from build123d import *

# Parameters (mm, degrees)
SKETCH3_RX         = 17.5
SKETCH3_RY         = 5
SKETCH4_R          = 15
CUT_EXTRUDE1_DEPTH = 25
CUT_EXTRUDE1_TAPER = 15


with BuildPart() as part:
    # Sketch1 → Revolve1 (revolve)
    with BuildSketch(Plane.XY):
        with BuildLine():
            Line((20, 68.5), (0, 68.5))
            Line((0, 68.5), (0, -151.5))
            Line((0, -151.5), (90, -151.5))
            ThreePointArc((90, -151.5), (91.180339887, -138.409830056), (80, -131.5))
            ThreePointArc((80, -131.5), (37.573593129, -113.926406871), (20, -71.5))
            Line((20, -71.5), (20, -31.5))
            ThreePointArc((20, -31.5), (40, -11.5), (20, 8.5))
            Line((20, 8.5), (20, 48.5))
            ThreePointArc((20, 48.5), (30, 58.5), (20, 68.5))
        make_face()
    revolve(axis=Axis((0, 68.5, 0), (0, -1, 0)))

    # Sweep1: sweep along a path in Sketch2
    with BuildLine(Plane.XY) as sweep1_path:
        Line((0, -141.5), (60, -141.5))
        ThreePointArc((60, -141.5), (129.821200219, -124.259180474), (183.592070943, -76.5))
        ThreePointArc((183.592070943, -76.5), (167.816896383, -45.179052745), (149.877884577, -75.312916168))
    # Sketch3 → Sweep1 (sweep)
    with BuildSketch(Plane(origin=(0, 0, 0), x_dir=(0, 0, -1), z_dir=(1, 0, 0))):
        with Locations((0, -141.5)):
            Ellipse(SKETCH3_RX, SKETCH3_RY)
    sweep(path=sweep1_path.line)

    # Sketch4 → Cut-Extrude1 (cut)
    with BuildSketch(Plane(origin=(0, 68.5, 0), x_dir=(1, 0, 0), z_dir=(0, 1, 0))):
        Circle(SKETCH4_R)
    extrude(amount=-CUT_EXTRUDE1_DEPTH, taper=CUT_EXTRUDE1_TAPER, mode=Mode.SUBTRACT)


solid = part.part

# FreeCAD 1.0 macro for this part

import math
import FreeCAD as App
import Part
import Sketcher
from FreeCAD import Vector
Q = App.Units.Quantity

doc = App.newDocument("Part")
params = doc.addObject("Spreadsheet::Sheet", "Params")
for row, (alias, value) in enumerate([
    ("sketch1_radius", "60 mm"),
    ("sketch1_radius2", "20 mm"),
    ("sketch1_radius3", "10 mm"),
    ("sketch1_radius4", "12.5 mm"),
    ("sketch1_width", "20 mm"),
    ("revolution_angle", "360 deg"),
    ("sketch3_radius", "150 mm"),
    ("sketch3_radius2", "20 mm"),
    ("sketch3_width", "60 mm"),
    ("sketch4_diameter", "30 mm"),
    ("pocket1_length", "25 mm"),
    ("pocket1_taper", "-15 deg"),
], start=1):
    params.set(f"A{row}", alias)
    params.set(f"B{row}", "=" + value)
    params.setAlias(f"B{row}", alias)

body = doc.addObject("PartDesign::Body", "Body")

# Sketch on XY plane
sketch1 = body.newObject("Sketcher::SketchObject", "Sketch")
sketch1.AttachmentSupport = (doc.getObject("XY_Plane"), [""])
sketch1.MapMode = "FlatFace"
sketch1.addGeometry([
    Part.LineSegment(Vector(20, 68, 0), Vector(0, 68, 0)),  # 0
    Part.LineSegment(Vector(0, 68, 0), Vector(0, -152, 0)),  # 1
    Part.LineSegment(Vector(0, -152, 0), Vector(90, -152, 0)),  # 2
    Part.ArcOfCircle(Part.Circle(Vector(80, -144, 0), Vector(0, 0, 1), 12), math.radians(-37), math.radians(90)),  # 3
    Part.ArcOfCircle(Part.Circle(Vector(80, -71, 0), Vector(0, 0, 1), 60), math.radians(-180), math.radians(-90)),  # 4
    Part.LineSegment(Vector(20, -72, 0), Vector(20, -32, 0)),  # 5
    Part.ArcOfCircle(Part.Circle(Vector(20, -12, 0), Vector(0, 0, 1), 20), math.radians(-90), math.radians(90)),  # 6
    Part.LineSegment(Vector(20, 8, 0), Vector(20, 48, 0)),  # 7
    Part.ArcOfCircle(Part.Circle(Vector(20, 58, 0), Vector(0, 0, 1), 10), math.radians(-90), math.radians(90)),  # 8
], False)
sketch1.addConstraint([
    Sketcher.Constraint("Coincident", 0, 2, 1, 1),
    Sketcher.Constraint("Coincident", 1, 2, 2, 1),
    Sketcher.Constraint("Coincident", 2, 2, 3, 1),
    Sketcher.Constraint("Tangent", 3, 2, 4, 2),
    Sketcher.Constraint("Tangent", 4, 1, 5, 1),
    Sketcher.Constraint("Coincident", 5, 2, 6, 1),
    Sketcher.Constraint("Coincident", 6, 2, 7, 1),
    Sketcher.Constraint("Coincident", 7, 2, 8, 1),
    Sketcher.Constraint("Tangent", 8, 2, 0, 1),
    Sketcher.Constraint("Horizontal", 0),
    Sketcher.Constraint("Vertical", 1),
    Sketcher.Constraint("Horizontal", 2),
    Sketcher.Constraint("Vertical", 5),
    Sketcher.Constraint("Vertical", 7),
    Sketcher.Constraint("PointOnObject", 0, 2, -2),
    Sketcher.Constraint("Vertical", 3, 3, 4, 3),
    Sketcher.Constraint("Vertical", 6, 3, 8, 3),
    Sketcher.Constraint("Vertical", 8, 3, 4, 1),
    Sketcher.Constraint("Vertical", 5, 2, 6, 2),
    Sketcher.Constraint("Equal", 5, 7),
    Sketcher.Constraint("Radius", 4, Q("60 mm")),
    Sketcher.Constraint("Radius", 6, Q("20 mm")),
    Sketcher.Constraint("Radius", 8, Q("10 mm")),
    Sketcher.Constraint("Radius", 3, Q("12.5 mm")),
    Sketcher.Constraint("DistanceX", 0, 2, 0, 1, Q("20 mm")),
    Sketcher.Constraint("DistanceX", 2, 1, 2, 2, Q("90 mm")),
    Sketcher.Constraint("DistanceY", 1, 2, 1, 1, Q("220 mm")),
    Sketcher.Constraint("DistanceY", 3, 3, -1, 1, Q("144 mm")),
])
sketch1.setExpression("Constraints[20]", "Params.sketch1_radius")
sketch1.setExpression("Constraints[21]", "Params.sketch1_radius2")
sketch1.setExpression("Constraints[22]", "Params.sketch1_radius3")
sketch1.setExpression("Constraints[23]", "Params.sketch1_radius4")
sketch1.setExpression("Constraints[24]", "Params.sketch1_width")
revolution = body.newObject("PartDesign::Revolution", "Revolution")
revolution.Profile = sketch1
revolution.ReferenceAxis = (sketch1, ["V_Axis"])
revolution.setExpression("Angle", "Params.revolution_angle")

# Sketch on YZ plane
sketch2 = body.newObject("Sketcher::SketchObject", "Sketch001")
sketch2.AttachmentSupport = (doc.getObject("YZ_Plane"), [""])
sketch2.MapMode = "FlatFace"
sketch2.addGeometry(Part.Ellipse(Vector(-141.5, -17.5, 0), Vector(-136.5, 0, 0), Vector(-141.5, 0, 0)), False)
sketch2.addConstraint(Sketcher.Constraint("Block", 0))

# Sketch on XY plane
sketch3 = body.newObject("Sketcher::SketchObject", "Sketch002")
sketch3.AttachmentSupport = (doc.getObject("XY_Plane"), [""])
sketch3.MapMode = "FlatFace"
sketch3.addGeometry([
    Part.LineSegment(Vector(0, -142, 0), Vector(60, -142, 0)),
    Part.ArcOfCircle(Part.Circle(Vector(60, 8, 0), Vector(0, 0, 1), 150), math.radians(-90), math.radians(-35)),
    Part.ArcOfCircle(Part.Circle(Vector(167, -65, 0), Vector(0, 0, 1), 20), math.radians(-35), math.radians(210)),
], False)
sketch3.addConstraint([
    Sketcher.Constraint("Tangent", 0, 2, 1, 1),
    Sketcher.Constraint("Tangent", 1, 2, 2, 1),
    Sketcher.Constraint("Horizontal", 0),
    Sketcher.Constraint("PointOnObject", 0, 1, -2),
    Sketcher.Constraint("Radius", 1, Q("150 mm")),
    Sketcher.Constraint("Radius", 2, Q("20 mm")),
    Sketcher.Constraint("DistanceX", 0, 1, 0, 2, Q("60 mm")),
    Sketcher.Constraint("DistanceY", 0, 2, 1, 2, Q("65 mm")),
    Sketcher.Constraint("DistanceY", -1, 1, 1, 3, Q("8.5 mm")),
    Sketcher.Constraint("DistanceY", 2, 2, 2, 3, Q("10.14625 mm")),
])
sketch3.setExpression("Constraints[4]", "Params.sketch3_radius")
sketch3.setExpression("Constraints[5]", "Params.sketch3_radius2")
sketch3.setExpression("Constraints[6]", "Params.sketch3_width")
doc.recompute()

additivepipe = body.newObject("PartDesign::AdditivePipe", "AdditivePipe")
additivepipe.Profile = sketch2
additivepipe.Spine = (sketch3, ["Edge1", "Edge2", "Edge3"])

# Sketch on XZ plane
sketch4 = body.newObject("Sketcher::SketchObject", "Sketch003")
sketch4.AttachmentSupport = (doc.getObject("XZ_Plane"), [""])
sketch4.MapMode = "FlatFace"
sketch4.AttachmentOffset = App.Placement(Vector(0, 0, -68.5), App.Rotation())
sketch4.addGeometry(Part.Circle(Vector(0, 0, 0), Vector(0, 0, 1), 15), False)
sketch4.addConstraint([
    Sketcher.Constraint("Coincident", 0, 3, -1, 1),
    Sketcher.Constraint("Diameter", 0, Q("30 mm")),
])
sketch4.setExpression("Constraints[1]", "Params.sketch4_diameter")
pocket1 = body.newObject("PartDesign::Pocket", "Pocket")
pocket1.Profile = sketch4
pocket1.setExpression("Length", "Params.pocket1_length")
pocket1.Reversed = True
pocket1.setExpression("TaperAngle", "Params.pocket1_taper")

doc.recompute()
